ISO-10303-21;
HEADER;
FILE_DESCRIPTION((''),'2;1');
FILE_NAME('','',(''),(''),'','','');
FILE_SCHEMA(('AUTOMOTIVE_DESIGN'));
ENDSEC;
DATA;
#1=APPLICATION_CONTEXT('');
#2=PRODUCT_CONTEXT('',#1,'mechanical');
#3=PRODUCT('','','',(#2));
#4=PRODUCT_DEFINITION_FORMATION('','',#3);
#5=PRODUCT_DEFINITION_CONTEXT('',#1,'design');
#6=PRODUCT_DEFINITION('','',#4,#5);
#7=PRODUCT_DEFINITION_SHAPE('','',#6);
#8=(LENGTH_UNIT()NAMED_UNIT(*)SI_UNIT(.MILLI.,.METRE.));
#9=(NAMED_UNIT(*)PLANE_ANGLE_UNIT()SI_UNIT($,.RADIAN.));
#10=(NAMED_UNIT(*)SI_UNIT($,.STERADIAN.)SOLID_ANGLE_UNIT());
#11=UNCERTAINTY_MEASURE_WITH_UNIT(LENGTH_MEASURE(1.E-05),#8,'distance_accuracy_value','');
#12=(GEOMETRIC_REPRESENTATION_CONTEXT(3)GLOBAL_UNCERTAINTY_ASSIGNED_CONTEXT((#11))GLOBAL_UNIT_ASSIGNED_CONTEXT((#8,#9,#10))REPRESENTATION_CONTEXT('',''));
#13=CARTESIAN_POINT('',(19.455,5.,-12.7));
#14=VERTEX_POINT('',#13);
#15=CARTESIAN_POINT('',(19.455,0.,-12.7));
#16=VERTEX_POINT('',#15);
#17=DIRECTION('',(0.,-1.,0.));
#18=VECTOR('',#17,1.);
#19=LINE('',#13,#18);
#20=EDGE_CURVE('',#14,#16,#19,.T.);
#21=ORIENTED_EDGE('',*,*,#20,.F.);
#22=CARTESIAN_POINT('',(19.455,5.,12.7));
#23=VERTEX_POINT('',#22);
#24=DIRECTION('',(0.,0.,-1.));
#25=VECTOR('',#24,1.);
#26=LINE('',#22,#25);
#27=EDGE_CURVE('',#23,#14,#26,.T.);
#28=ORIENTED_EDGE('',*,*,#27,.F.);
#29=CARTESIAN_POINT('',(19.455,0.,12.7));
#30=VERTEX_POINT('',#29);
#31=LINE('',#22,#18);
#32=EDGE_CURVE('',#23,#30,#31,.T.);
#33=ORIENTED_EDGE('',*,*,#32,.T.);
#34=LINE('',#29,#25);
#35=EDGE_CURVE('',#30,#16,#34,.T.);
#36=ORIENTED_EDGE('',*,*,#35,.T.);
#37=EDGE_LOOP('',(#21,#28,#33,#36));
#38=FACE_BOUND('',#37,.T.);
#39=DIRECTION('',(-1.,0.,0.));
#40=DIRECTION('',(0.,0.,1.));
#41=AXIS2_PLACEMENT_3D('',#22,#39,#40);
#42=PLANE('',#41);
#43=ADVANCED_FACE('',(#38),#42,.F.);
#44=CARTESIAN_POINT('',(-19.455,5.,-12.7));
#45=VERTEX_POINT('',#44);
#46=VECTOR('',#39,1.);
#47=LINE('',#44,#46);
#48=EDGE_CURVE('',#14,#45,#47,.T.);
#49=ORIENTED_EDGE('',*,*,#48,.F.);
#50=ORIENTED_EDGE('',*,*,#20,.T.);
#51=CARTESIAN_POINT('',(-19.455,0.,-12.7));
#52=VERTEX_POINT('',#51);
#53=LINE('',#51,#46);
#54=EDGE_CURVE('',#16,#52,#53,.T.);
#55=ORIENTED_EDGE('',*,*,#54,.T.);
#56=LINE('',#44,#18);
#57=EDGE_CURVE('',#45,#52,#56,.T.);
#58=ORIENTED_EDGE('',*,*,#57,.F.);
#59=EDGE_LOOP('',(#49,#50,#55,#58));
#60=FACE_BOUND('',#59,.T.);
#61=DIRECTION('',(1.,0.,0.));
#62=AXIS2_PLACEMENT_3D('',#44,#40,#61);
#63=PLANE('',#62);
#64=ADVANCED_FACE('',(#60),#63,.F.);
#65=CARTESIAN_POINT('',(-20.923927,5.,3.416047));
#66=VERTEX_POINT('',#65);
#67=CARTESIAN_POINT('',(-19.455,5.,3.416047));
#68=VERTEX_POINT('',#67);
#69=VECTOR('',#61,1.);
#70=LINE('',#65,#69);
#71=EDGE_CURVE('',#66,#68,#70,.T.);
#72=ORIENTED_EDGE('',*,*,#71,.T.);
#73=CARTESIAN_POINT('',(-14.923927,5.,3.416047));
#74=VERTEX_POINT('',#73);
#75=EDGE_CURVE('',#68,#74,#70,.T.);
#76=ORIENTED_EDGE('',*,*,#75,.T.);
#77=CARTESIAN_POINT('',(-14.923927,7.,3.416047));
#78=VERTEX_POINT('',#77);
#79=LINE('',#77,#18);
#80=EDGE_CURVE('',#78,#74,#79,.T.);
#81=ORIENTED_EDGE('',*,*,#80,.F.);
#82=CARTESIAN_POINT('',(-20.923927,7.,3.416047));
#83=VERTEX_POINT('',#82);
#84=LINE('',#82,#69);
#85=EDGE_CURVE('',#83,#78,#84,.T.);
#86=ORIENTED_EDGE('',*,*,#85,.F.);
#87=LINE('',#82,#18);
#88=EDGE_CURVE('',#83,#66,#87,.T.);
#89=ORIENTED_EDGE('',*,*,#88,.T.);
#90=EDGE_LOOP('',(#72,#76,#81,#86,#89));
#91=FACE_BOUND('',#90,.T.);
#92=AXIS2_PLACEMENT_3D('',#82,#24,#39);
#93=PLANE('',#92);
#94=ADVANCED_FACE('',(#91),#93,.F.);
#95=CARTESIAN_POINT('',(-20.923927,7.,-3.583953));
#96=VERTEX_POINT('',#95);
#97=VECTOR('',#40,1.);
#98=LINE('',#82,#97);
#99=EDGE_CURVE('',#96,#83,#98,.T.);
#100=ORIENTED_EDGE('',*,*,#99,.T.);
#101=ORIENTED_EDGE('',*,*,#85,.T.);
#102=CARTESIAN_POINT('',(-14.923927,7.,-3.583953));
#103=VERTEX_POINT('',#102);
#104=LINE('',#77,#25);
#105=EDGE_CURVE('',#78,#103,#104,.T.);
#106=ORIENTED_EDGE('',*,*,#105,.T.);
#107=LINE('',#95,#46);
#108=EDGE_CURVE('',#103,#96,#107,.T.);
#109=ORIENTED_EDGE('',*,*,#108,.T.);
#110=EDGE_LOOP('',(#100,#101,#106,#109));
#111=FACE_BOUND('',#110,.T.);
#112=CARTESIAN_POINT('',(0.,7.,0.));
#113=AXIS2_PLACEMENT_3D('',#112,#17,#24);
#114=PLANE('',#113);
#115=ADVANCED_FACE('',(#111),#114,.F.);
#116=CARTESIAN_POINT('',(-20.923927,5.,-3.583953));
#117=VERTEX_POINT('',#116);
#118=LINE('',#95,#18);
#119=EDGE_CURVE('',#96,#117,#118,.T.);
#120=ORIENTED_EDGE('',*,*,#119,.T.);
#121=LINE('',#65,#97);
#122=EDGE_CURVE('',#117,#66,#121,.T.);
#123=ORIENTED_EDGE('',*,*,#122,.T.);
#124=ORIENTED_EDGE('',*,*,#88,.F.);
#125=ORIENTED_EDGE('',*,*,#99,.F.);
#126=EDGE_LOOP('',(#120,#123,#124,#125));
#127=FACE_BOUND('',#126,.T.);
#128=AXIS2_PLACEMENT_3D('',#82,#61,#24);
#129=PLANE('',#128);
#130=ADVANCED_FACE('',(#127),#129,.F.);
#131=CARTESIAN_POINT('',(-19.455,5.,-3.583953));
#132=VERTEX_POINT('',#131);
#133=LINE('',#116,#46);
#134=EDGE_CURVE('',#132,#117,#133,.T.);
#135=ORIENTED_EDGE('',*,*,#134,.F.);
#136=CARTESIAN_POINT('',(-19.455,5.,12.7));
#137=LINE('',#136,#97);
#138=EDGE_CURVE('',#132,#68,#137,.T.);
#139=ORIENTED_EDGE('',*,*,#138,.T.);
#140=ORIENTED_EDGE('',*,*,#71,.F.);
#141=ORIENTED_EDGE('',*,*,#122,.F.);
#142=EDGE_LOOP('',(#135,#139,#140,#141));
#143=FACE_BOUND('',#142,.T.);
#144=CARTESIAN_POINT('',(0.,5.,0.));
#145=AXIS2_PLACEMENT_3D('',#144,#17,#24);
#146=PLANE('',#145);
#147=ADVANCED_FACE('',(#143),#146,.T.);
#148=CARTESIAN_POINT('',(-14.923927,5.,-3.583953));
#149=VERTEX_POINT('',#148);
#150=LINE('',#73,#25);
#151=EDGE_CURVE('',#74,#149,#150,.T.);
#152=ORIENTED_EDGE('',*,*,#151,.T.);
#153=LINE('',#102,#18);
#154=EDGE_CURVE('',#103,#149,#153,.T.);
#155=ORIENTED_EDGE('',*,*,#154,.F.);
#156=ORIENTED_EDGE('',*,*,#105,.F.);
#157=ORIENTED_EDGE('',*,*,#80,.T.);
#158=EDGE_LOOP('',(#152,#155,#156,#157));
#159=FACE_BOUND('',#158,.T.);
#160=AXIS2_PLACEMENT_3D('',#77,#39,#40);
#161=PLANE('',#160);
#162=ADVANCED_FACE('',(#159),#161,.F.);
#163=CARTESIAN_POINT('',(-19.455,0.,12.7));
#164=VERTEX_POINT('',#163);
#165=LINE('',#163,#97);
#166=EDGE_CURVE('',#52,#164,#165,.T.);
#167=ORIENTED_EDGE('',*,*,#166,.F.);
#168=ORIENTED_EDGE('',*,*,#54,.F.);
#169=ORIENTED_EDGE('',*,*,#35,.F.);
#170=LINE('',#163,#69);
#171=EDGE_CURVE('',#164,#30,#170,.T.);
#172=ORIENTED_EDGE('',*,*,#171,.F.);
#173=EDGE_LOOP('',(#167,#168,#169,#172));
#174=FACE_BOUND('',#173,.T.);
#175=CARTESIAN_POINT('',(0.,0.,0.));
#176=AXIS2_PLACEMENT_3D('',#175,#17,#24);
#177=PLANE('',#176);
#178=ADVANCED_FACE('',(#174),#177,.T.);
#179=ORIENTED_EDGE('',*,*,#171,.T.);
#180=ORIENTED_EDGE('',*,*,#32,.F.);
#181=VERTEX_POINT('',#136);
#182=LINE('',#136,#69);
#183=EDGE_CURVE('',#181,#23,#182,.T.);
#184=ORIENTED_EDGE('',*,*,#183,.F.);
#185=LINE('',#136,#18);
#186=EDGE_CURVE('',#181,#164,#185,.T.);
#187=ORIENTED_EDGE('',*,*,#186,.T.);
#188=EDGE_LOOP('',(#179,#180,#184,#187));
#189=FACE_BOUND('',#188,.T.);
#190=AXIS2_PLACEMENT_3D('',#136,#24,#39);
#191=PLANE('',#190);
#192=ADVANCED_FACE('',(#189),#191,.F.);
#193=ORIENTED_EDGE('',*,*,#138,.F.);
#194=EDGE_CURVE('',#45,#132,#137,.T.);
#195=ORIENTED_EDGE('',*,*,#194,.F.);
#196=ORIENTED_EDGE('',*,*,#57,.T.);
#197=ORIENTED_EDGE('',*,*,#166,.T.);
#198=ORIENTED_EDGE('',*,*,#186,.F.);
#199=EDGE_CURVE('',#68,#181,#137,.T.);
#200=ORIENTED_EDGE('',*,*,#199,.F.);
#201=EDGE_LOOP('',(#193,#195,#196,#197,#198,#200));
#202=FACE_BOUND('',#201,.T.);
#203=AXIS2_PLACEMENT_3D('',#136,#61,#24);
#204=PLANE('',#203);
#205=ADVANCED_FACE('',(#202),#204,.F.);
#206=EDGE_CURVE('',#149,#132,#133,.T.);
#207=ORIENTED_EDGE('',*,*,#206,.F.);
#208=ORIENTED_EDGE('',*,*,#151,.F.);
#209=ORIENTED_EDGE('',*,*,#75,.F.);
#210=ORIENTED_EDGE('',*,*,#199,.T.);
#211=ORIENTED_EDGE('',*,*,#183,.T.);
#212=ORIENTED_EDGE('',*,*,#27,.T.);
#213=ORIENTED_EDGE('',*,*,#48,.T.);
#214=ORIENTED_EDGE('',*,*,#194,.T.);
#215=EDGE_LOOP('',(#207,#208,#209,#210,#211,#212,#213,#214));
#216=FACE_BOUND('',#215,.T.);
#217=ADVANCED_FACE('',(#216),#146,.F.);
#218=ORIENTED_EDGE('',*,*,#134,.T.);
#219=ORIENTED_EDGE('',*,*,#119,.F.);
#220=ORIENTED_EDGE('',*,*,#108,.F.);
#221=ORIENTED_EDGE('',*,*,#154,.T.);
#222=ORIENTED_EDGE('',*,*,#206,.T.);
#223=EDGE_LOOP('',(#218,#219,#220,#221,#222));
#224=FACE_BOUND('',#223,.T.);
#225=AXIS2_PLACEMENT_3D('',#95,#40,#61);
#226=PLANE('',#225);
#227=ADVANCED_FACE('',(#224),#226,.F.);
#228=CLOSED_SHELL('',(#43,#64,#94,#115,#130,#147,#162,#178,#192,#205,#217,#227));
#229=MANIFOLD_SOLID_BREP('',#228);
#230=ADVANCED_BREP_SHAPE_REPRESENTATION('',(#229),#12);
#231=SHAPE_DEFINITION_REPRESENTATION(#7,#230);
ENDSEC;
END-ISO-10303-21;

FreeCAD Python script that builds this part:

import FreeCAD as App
import Part
import Sketcher

V = App.Vector

doc = App.newDocument("Part")
body = doc.addObject("PartDesign::Body", "Body")

# Sketch on XZ plane
sketch1 = body.newObject("Sketcher::SketchObject", "Sketch")
sketch1.AttachmentSupport = (doc.getObject("XZ_Plane"), [""])
sketch1.MapMode = "FlatFace"
sketch1.addGeometry(Part.LineSegment(V(-19, -13, 0), V(-19, 13, 0)), False)
sketch1.addGeometry(Part.LineSegment(V(-19, 13, 0), V(19, 13, 0)), False)
sketch1.addGeometry(Part.LineSegment(V(19, 13, 0), V(19, -13, 0)), False)
sketch1.addGeometry(Part.LineSegment(V(19, -13, 0), V(-19, -13, 0)), False)
sketch1.addConstraint(Sketcher.Constraint("Coincident", 0, 2, 1, 1))
sketch1.addConstraint(Sketcher.Constraint("Coincident", 1, 2, 2, 1))
sketch1.addConstraint(Sketcher.Constraint("Coincident", 2, 2, 3, 1))
sketch1.addConstraint(Sketcher.Constraint("Coincident", 3, 2, 0, 1))
sketch1.addConstraint(Sketcher.Constraint("Vertical", 0))
sketch1.addConstraint(Sketcher.Constraint("Horizontal", 1))
sketch1.addConstraint(Sketcher.Constraint("Vertical", 2))
sketch1.addConstraint(Sketcher.Constraint("Horizontal", 3))
sketch1.addConstraint(Sketcher.Constraint("Symmetric", 0, 2, 2, 2, -1, 1))
sketch1.addConstraint(Sketcher.Constraint("DistanceY", 0, 1, 0, 2, 25.4))
sketch1.addConstraint(Sketcher.Constraint("DistanceX", 1, 1, 1, 2, 38.91))
pad1 = body.newObject("PartDesign::Pad", "Pad")
pad1.Profile = sketch1
pad1.Length = 5
pad1.Reversed = True

# Sketch on XZ plane
sketch2 = body.newObject("Sketcher::SketchObject", "Sketch001")
sketch2.AttachmentSupport = (doc.getObject("XZ_Plane"), [""])
sketch2.MapMode = "FlatFace"
sketch2.AttachmentOffset = App.Placement(V(0, 0, -5), App.Rotation())
sketch2.addGeometry(Part.LineSegment(V(-21, -4, 0), V(-21, 3, 0)), False)
sketch2.addGeometry(Part.LineSegment(V(-21, 3, 0), V(-15, 3, 0)), False)
sketch2.addGeometry(Part.LineSegment(V(-15, 3, 0), V(-15, -4, 0)), False)
sketch2.addGeometry(Part.LineSegment(V(-15, -4, 0), V(-21, -4, 0)), False)
sketch2.addConstraint(Sketcher.Constraint("Coincident", 0, 2, 1, 1))
sketch2.addConstraint(Sketcher.Constraint("Coincident", 1, 2, 2, 1))
sketch2.addConstraint(Sketcher.Constraint("Coincident", 2, 2, 3, 1))
sketch2.addConstraint(Sketcher.Constraint("Coincident", 3, 2, 0, 1))
sketch2.addConstraint(Sketcher.Constraint("Vertical", 0))
sketch2.addConstraint(Sketcher.Constraint("Horizontal", 1))
sketch2.addConstraint(Sketcher.Constraint("Vertical", 2))
sketch2.addConstraint(Sketcher.Constraint("Horizontal", 3))
sketch2.addConstraint(Sketcher.Constraint("DistanceX", 1, 1, 1, 2, 6.0))
sketch2.addConstraint(Sketcher.Constraint("DistanceY", 0, 1, 0, 2, 7.0))
sketch2.addConstraint(Sketcher.Constraint("DistanceX", 0, 2, -1, 1, 20.923927))
sketch2.addConstraint(Sketcher.Constraint("DistanceY", -1, 1, 0, 2, 3.416047))
pad2 = body.newObject("PartDesign::Pad", "Pad001")
pad2.Profile = sketch2
pad2.Length = 2
pad2.Reversed = True

doc.recompute()
